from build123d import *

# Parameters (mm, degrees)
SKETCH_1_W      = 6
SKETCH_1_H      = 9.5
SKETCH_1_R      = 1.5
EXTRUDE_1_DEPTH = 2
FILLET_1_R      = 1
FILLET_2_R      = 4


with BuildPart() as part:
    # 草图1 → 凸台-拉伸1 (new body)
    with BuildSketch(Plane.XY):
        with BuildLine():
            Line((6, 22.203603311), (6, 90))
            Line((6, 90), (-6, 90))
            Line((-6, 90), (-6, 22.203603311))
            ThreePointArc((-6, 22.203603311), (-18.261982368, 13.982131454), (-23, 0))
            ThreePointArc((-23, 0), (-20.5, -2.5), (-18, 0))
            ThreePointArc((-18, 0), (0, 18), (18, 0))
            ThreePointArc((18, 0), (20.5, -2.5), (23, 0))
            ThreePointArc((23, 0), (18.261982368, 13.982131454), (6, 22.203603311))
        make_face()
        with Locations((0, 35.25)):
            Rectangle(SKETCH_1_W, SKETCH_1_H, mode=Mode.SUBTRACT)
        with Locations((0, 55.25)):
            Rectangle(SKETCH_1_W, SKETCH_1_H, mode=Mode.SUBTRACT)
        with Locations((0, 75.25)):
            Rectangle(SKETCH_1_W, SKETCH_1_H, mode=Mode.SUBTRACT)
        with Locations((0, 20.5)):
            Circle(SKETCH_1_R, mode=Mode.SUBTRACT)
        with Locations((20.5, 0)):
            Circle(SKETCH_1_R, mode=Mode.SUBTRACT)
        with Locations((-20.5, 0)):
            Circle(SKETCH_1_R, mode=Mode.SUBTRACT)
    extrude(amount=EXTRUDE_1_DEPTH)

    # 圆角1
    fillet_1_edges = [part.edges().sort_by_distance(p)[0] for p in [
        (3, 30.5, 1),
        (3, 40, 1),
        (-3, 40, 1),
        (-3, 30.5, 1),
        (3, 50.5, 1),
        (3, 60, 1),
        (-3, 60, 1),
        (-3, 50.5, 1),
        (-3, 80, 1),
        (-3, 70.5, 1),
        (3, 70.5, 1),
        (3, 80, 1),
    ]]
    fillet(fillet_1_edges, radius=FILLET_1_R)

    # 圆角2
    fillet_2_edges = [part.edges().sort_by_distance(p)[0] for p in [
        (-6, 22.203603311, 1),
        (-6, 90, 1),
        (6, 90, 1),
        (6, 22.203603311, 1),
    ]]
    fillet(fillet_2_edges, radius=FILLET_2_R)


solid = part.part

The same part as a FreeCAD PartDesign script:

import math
import FreeCAD as App
import Part
import Sketcher
Q = App.Units.Quantity


def edges_at(feature, points):
    """Names of the edges that pass closest to the given points."""
    edges = feature.Shape.Edges
    near = lambda p: min(range(len(edges)), key=lambda i: edges[i].distToShape(Part.Vertex(*p))[0])
    return sorted({f"Edge{near(p) + 1}" for p in points})

doc = App.newDocument("Part")
body = doc.addObject("PartDesign::Body", "Body")

sketch1 = body.newObject("Sketcher::SketchObject", "Sketch")
sketch1.AttachmentSupport = (doc.getObject("XY_Plane"), [""])
sketch1.MapMode = "FlatFace"
sketch1.addGeometry([
    Part.LineSegment(App.Vector(6, 22.2, 0), App.Vector(6, 90, 0)),
    Part.LineSegment(App.Vector(6, 90, 0), App.Vector(-6, 90, 0)),
    Part.LineSegment(App.Vector(-6, 90, 0), App.Vector(-6, 22.2, 0)),
    Part.ArcOfCircle(Part.Circle(App.Vector(0, 0, 0), App.Vector(0, 0, 1), 23), math.radians(105), math.radians(180)),
    Part.ArcOfCircle(Part.Circle(App.Vector(-20.5, 0, 0), App.Vector(0, 0, 1), 2.5), math.radians(180), math.radians(360)),
    Part.ArcOfCircle(Part.Circle(App.Vector(0, 0, 0), App.Vector(0, 0, 1), 18), math.radians(0), math.radians(180)),
    Part.ArcOfCircle(Part.Circle(App.Vector(20.5, 0, 0), App.Vector(0, 0, 1), 2.5), math.radians(180), math.radians(360)),
    Part.ArcOfCircle(Part.Circle(App.Vector(0, 0, 0), App.Vector(0, 0, 1), 23), math.radians(0), math.radians(75)),
    Part.Circle(App.Vector(-20.5, 0, 0), App.Vector(0, 0, 1), 1.5),
    Part.Circle(App.Vector(20.5, 0, 0), App.Vector(0, 0, 1), 1.5),
    Part.Circle(App.Vector(0, 20.5, 0), App.Vector(0, 0, 1), 1.5),
    Part.LineSegment(App.Vector(3, 30.5, 0), App.Vector(-3, 30.5, 0)),
    Part.LineSegment(App.Vector(-3, 30.5, 0), App.Vector(-3, 40, 0)),
    Part.LineSegment(App.Vector(-3, 40, 0), App.Vector(3, 40, 0)),
    Part.LineSegment(App.Vector(3, 40, 0), App.Vector(3, 30.5, 0)),
    Part.LineSegment(App.Vector(3, 50.5, 0), App.Vector(-3, 50.5, 0)),
    Part.LineSegment(App.Vector(-3, 50.5, 0), App.Vector(-3, 60, 0)),
    Part.LineSegment(App.Vector(-3, 60, 0), App.Vector(3, 60, 0)),
    Part.LineSegment(App.Vector(3, 60, 0), App.Vector(3, 50.5, 0)),
    Part.LineSegment(App.Vector(3, 70.5, 0), App.Vector(-3, 70.5, 0)),
    Part.LineSegment(App.Vector(-3, 70.5, 0), App.Vector(-3, 80, 0)),
    Part.LineSegment(App.Vector(-3, 80, 0), App.Vector(3, 80, 0)),
    Part.LineSegment(App.Vector(3, 80, 0), App.Vector(3, 70.5, 0)),
], False)
sketch1.addConstraint([
    Sketcher.Constraint("Coincident", 0, 2, 1, 1),
    Sketcher.Constraint("Coincident", 1, 2, 2, 1),
    Sketcher.Constraint("Coincident", 2, 2, 3, 1),
    Sketcher.Constraint("Tangent", 3, 2, 4, 1),
    Sketcher.Constraint("Tangent", 4, 2, 5, 2),
    Sketcher.Constraint("Tangent", 5, 1, 6, 1),
    Sketcher.Constraint("Tangent", 6, 2, 7, 1),
    Sketcher.Constraint("Coincident", 7, 2, 0, 1),
    Sketcher.Constraint("Coincident", 11, 2, 12, 1),
    Sketcher.Constraint("Coincident", 12, 2, 13, 1),
    Sketcher.Constraint("Coincident", 13, 2, 14, 1),
    Sketcher.Constraint("Coincident", 14, 2, 11, 1),
    Sketcher.Constraint("Coincident", 15, 2, 16, 1),
    Sketcher.Constraint("Coincident", 16, 2, 17, 1),
    Sketcher.Constraint("Coincident", 17, 2, 18, 1),
    Sketcher.Constraint("Coincident", 18, 2, 15, 1),
    Sketcher.Constraint("Coincident", 19, 2, 20, 1),
    Sketcher.Constraint("Coincident", 20, 2, 21, 1),
    Sketcher.Constraint("Coincident", 21, 2, 22, 1),
    Sketcher.Constraint("Coincident", 22, 2, 19, 1),
    Sketcher.Constraint("Vertical", 0),
    Sketcher.Constraint("Horizontal", 1),
    Sketcher.Constraint("Vertical", 2),
    Sketcher.Constraint("Horizontal", 11),
    Sketcher.Constraint("Vertical", 12),
    Sketcher.Constraint("Horizontal", 13),
    Sketcher.Constraint("Vertical", 14),
    Sketcher.Constraint("Horizontal", 15),
    Sketcher.Constraint("Vertical", 16),
    Sketcher.Constraint("Horizontal", 17),
    Sketcher.Constraint("Vertical", 18),
    Sketcher.Constraint("Horizontal", 19),
    Sketcher.Constraint("Vertical", 20),
    Sketcher.Constraint("Horizontal", 21),
    Sketcher.Constraint("Vertical", 22),
    Sketcher.Constraint("Coincident", 3, 3, -1, 1),
    Sketcher.Constraint("Coincident", 5, 3, -1, 1),
    Sketcher.Constraint("Coincident", 7, 3, -1, 1),
    Sketcher.Constraint("Coincident", 8, 3, 4, 3),
    Sketcher.Constraint("Coincident", 9, 3, 6, 3),
    Sketcher.Constraint("Equal", 4, 6),
    Sketcher.Constraint("Equal", 8, 9),
    Sketcher.Constraint("Equal", 9, 10),
    Sketcher.Constraint("PointOnObject", 4, 3, -1),
    Sketcher.Constraint("PointOnObject", 6, 3, -1),
    Sketcher.Constraint("PointOnObject", 10, 3, -2),
    Sketcher.Constraint("Horizontal", 2, 2, 7, 2),
    Sketcher.Constraint("Vertical", 12, 2, 15, 2),
    Sketcher.Constraint("Vertical", 14, 2, 17, 2),
    Sketcher.Constraint("Vertical", 16, 2, 19, 2),
    Sketcher.Constraint("Vertical", 18, 2, 21, 2),
    Sketcher.Constraint("Equal", 14, 16),
    Sketcher.Constraint("Equal", 18, 20),
    Sketcher.Constraint("Diameter", 8, Q("3 mm")),
    Sketcher.Constraint("Radius", 3, Q("23 mm")),
    Sketcher.Constraint("Radius", 5, Q("18 mm")),
    Sketcher.Constraint("DistanceX", 1, 2, 1, 1, Q("12 mm")),
    Sketcher.Constraint("DistanceX", 11, 2, 11, 1, Q("6 mm")),
    Sketcher.Constraint("DistanceY", 12, 1, 12, 2, Q("9.5 mm")),
    Sketcher.Constraint("DistanceY", -1, 1, 0, 2, Q("90 mm")),
    Sketcher.Constraint("DistanceX", 11, 2, -1, 1, Q("3 mm")),
    Sketcher.Constraint("DistanceY", -1, 1, 12, 2, Q("40 mm")),
    Sketcher.Constraint("DistanceY", -1, 1, 16, 2, Q("60 mm")),
    Sketcher.Constraint("DistanceY", -1, 1, 20, 2, Q("80 mm")),
    Sketcher.Constraint("DistanceY", 10, 3, 11, 2, Q("10 mm")),
])
pad1 = body.newObject("PartDesign::Pad", "Pad")
pad1.Profile = sketch1
pad1.Length = 2
doc.recompute()

fillet = body.newObject("PartDesign::Fillet", "Fillet")
fillet.Base = (pad1, edges_at(pad1, [
    (3, 30.5, 1),
    (3, 40, 1),
    (-3, 40, 1),
    (-3, 30.5, 1),
    (3, 50.5, 1),
    (3, 60, 1),
    (-3, 60, 1),
    (-3, 50.5, 1),
    (-3, 80, 1),
    (-3, 70.5, 1),
    (3, 70.5, 1),
    (3, 80, 1),
]))
fillet.Radius = 1
doc.recompute()

fillet2 = body.newObject("PartDesign::Fillet", "Fillet001")
fillet2.Base = (fillet, edges_at(fillet, [
    (-6, 22.204, 1),
    (-6, 90, 1),
    (6, 90, 1),
    (6, 22.204, 1),
]))
fillet2.Radius = 4

doc.recompute()
